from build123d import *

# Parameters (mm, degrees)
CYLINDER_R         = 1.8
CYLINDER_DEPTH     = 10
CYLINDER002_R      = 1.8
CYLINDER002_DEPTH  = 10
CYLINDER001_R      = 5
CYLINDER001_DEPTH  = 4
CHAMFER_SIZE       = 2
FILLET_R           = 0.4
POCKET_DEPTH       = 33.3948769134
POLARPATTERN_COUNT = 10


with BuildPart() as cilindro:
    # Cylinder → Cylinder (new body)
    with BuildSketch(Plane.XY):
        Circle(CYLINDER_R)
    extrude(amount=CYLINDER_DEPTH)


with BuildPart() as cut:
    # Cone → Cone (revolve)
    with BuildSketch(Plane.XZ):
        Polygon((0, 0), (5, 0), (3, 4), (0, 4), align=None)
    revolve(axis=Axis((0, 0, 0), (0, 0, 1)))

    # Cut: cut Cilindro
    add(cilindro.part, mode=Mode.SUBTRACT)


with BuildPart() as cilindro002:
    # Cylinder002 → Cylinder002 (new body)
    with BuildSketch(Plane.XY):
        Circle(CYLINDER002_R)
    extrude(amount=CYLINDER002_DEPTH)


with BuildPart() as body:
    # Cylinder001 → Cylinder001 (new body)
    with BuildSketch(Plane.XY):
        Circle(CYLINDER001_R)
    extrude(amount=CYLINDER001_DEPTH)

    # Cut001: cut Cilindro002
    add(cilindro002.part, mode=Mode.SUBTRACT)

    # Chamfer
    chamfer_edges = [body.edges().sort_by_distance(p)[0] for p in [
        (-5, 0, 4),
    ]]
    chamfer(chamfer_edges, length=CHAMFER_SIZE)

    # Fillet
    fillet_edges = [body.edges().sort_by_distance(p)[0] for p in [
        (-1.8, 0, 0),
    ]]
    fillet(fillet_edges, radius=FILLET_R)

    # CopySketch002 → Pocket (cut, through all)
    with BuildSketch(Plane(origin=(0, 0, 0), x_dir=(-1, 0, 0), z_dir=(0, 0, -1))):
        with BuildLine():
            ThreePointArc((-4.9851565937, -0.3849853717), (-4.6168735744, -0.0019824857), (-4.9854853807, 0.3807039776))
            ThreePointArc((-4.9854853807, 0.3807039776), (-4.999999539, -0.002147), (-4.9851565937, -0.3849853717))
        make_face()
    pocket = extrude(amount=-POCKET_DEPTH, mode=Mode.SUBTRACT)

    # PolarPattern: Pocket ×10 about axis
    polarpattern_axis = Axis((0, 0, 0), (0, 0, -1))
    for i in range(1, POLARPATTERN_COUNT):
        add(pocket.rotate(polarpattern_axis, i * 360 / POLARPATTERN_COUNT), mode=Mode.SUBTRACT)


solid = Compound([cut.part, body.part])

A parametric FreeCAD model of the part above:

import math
import FreeCAD as App
import Part
import Sketcher


def edges_at(feature, points):
    """Names of the edges that pass closest to the given points."""
    edges = feature.Shape.Edges
    near = lambda p: min(range(len(edges)), key=lambda i: edges[i].distToShape(Part.Vertex(*p))[0])
    return sorted({f"Edge{near(p) + 1}" for p in points})

doc = App.newDocument("Part")
params = doc.addObject("Spreadsheet::Sheet", "Params")
for row, (alias, value) in enumerate([
    ("sketch1_diameter", "3.6 mm"),
    ("pad1_length", "10 mm"),
    ("sketch2_width", "5 mm"),
    ("sketch2_width2", "3 mm"),
    ("sketch2_height", "4 mm"),
    ("revolution_angle", "360 deg"),
    ("sketch3_diameter", "3.6 mm"),
    ("pad2_length", "10 mm"),
    ("sketch4_diameter", "10 mm"),
    ("pad3_length", "4 mm"),
    ("chamfer_size", "2 mm"),
    ("fillet_radius", "0.4 mm"),
    ("sketch5_radius", "5 mm"),
], start=1):
    params.set(f"A{row}", alias)
    params.set(f"B{row}", "=" + value)
    params.setAlias(f"B{row}", alias)

body = doc.addObject("PartDesign::Body", "Body")

# Sketch on XY plane
sketch1 = body.newObject("Sketcher::SketchObject", "Sketch")
sketch1.AttachmentSupport = (doc.getObject("XY_Plane"), [""])
sketch1.MapMode = "FlatFace"
sketch1.addGeometry(Part.Circle(App.Vector(0, 0, 0), App.Vector(0, 0, 1), 1.8), False)
sketch1.addConstraint([
    Sketcher.Constraint("Coincident", 0, 3, -1, 1),
    Sketcher.Constraint("Diameter", 0, 3.6),
])
sketch1.setExpression("Constraints[1]", "Params.sketch1_diameter")
pad1 = body.newObject("PartDesign::Pad", "Pad")
pad1.Profile = sketch1
pad1.setExpression("Length", "Params.pad1_length")
body2 = doc.addObject("PartDesign::Body", "Body001")

# Sketch on XZ plane
sketch2 = body2.newObject("Sketcher::SketchObject", "Sketch001")
sketch2.AttachmentSupport = (doc.getObject("XZ_Plane001"), [""])
sketch2.MapMode = "FlatFace"
sketch2.addGeometry([
    Part.LineSegment(App.Vector(0, 0, 0), App.Vector(5, 0, 0)),
    Part.LineSegment(App.Vector(5, 0, 0), App.Vector(3, 4, 0)),
    Part.LineSegment(App.Vector(3, 4, 0), App.Vector(0, 4, 0)),
    Part.LineSegment(App.Vector(0, 4, 0), App.Vector(0, 0, 0)),
], False)
sketch2.addConstraint([
    Sketcher.Constraint("Coincident", 0, 2, 1, 1),
    Sketcher.Constraint("Coincident", 1, 2, 2, 1),
    Sketcher.Constraint("Coincident", 2, 2, 3, 1),
    Sketcher.Constraint("Coincident", 3, 2, 0, 1),
    Sketcher.Constraint("Horizontal", 0),
    Sketcher.Constraint("Horizontal", 2),
    Sketcher.Constraint("Vertical", 3),
    Sketcher.Constraint("Coincident", 3, 2, -1, 1),
    Sketcher.Constraint("DistanceX", 0, 1, 0, 2, 5.0),
    Sketcher.Constraint("DistanceX", 2, 2, 2, 1, 3.0),
    Sketcher.Constraint("DistanceY", 3, 2, 3, 1, 4.0),
])
sketch2.setExpression("Constraints[8]", "Params.sketch2_width")
sketch2.setExpression("Constraints[9]", "Params.sketch2_width2")
sketch2.setExpression("Constraints[10]", "Params.sketch2_height")
revolution = body2.newObject("PartDesign::Revolution", "Revolution")
revolution.Profile = sketch2
revolution.ReferenceAxis = (sketch2, ["V_Axis"])
revolution.setExpression("Angle", "Params.revolution_angle")
doc.recompute()

boolean = body2.newObject("PartDesign::Boolean", "Boolean")
boolean.Type = "Cut"
boolean.addObjects([body])
body3 = doc.addObject("PartDesign::Body", "Body002")

# Sketch on XY plane
sketch3 = body3.newObject("Sketcher::SketchObject", "Sketch002")
sketch3.AttachmentSupport = (doc.getObject("XY_Plane002"), [""])
sketch3.MapMode = "FlatFace"
sketch3.addGeometry(Part.Circle(App.Vector(0, 0, 0), App.Vector(0, 0, 1), 1.8), False)
sketch3.addConstraint([
    Sketcher.Constraint("Coincident", 0, 3, -1, 1),
    Sketcher.Constraint("Diameter", 0, 3.6),
])
sketch3.setExpression("Constraints[1]", "Params.sketch3_diameter")
pad2 = body3.newObject("PartDesign::Pad", "Pad001")
pad2.Profile = sketch3
pad2.setExpression("Length", "Params.pad2_length")
body4 = doc.addObject("PartDesign::Body", "Body003")

# Sketch on XY plane
sketch4 = body4.newObject("Sketcher::SketchObject", "Sketch003")
sketch4.AttachmentSupport = (doc.getObject("XY_Plane003"), [""])
sketch4.MapMode = "FlatFace"
sketch4.addGeometry(Part.Circle(App.Vector(0, 0, 0), App.Vector(0, 0, 1), 5), False)
sketch4.addConstraint([
    Sketcher.Constraint("Coincident", 0, 3, -1, 1),
    Sketcher.Constraint("Diameter", 0, 10.0),
])
sketch4.setExpression("Constraints[1]", "Params.sketch4_diameter")
pad3 = body4.newObject("PartDesign::Pad", "Pad002")
pad3.Profile = sketch4
pad3.setExpression("Length", "Params.pad3_length")
doc.recompute()

boolean2 = body4.newObject("PartDesign::Boolean", "Boolean001")
boolean2.Type = "Cut"
boolean2.addObjects([body3])
doc.recompute()

chamfer = body4.newObject("PartDesign::Chamfer", "Chamfer")
chamfer.Base = (boolean2, edges_at(boolean2, [(-5, 0, 4)]))
chamfer.setExpression("Size", "Params.chamfer_size")
doc.recompute()

fillet = body4.newObject("PartDesign::Fillet", "Fillet")
fillet.Base = (chamfer, edges_at(chamfer, [(-1.8, 0, 0)]))
fillet.setExpression("Radius", "Params.fillet_radius")

# Sketch on XY plane
sketch5 = body4.newObject("Sketcher::SketchObject", "Sketch004")
sketch5.AttachmentSupport = (doc.getObject("XY_Plane003"), [""])
sketch5.MapMode = "FlatFace"
sketch5.addGeometry([
    Part.ArcOfCircle(Part.Circle(App.Vector(5, 0, 0), App.Vector(0, 0, 1), 0.38), math.radians(92), math.radians(268)),
    Part.ArcOfCircle(Part.Circle(App.Vector(0, 0, 0), App.Vector(0, 0, 1), 5), math.radians(-4.42), math.radians(4.37)),
], False)
sketch5.addConstraint([
    Sketcher.Constraint("Coincident", 0, 1, 1, 2),
    Sketcher.Constraint("Coincident", 1, 1, 0, 2),
    Sketcher.Constraint("Coincident", 1, 3, -1, 1),
    Sketcher.Constraint("Radius", 1, 5.0),
    Sketcher.Constraint("DistanceX", -1, 1, 0, 3, 5.0),
    Sketcher.Constraint("Radius", 0, 0.383126),
    Sketcher.Constraint("DistanceY", 0, 3, 0, 1, 0.382851),
])
sketch5.setExpression("Constraints[3]", "Params.sketch5_radius")
pocket1 = body4.newObject("PartDesign::Pocket", "Pocket")
pocket1.Profile = sketch5
pocket1.Type = "ThroughAll"
pocket1.Reversed = True
doc.recompute()

polarpattern = body4.newObject("PartDesign::PolarPattern", "PolarPattern")
polarpattern.Originals = [pocket1]
polarpattern.Axis = (doc.getObject("Z_Axis003"), [""])
polarpattern.Angle = 360
polarpattern.Occurrences = 10
body4.Tip = polarpattern

doc.recompute()
